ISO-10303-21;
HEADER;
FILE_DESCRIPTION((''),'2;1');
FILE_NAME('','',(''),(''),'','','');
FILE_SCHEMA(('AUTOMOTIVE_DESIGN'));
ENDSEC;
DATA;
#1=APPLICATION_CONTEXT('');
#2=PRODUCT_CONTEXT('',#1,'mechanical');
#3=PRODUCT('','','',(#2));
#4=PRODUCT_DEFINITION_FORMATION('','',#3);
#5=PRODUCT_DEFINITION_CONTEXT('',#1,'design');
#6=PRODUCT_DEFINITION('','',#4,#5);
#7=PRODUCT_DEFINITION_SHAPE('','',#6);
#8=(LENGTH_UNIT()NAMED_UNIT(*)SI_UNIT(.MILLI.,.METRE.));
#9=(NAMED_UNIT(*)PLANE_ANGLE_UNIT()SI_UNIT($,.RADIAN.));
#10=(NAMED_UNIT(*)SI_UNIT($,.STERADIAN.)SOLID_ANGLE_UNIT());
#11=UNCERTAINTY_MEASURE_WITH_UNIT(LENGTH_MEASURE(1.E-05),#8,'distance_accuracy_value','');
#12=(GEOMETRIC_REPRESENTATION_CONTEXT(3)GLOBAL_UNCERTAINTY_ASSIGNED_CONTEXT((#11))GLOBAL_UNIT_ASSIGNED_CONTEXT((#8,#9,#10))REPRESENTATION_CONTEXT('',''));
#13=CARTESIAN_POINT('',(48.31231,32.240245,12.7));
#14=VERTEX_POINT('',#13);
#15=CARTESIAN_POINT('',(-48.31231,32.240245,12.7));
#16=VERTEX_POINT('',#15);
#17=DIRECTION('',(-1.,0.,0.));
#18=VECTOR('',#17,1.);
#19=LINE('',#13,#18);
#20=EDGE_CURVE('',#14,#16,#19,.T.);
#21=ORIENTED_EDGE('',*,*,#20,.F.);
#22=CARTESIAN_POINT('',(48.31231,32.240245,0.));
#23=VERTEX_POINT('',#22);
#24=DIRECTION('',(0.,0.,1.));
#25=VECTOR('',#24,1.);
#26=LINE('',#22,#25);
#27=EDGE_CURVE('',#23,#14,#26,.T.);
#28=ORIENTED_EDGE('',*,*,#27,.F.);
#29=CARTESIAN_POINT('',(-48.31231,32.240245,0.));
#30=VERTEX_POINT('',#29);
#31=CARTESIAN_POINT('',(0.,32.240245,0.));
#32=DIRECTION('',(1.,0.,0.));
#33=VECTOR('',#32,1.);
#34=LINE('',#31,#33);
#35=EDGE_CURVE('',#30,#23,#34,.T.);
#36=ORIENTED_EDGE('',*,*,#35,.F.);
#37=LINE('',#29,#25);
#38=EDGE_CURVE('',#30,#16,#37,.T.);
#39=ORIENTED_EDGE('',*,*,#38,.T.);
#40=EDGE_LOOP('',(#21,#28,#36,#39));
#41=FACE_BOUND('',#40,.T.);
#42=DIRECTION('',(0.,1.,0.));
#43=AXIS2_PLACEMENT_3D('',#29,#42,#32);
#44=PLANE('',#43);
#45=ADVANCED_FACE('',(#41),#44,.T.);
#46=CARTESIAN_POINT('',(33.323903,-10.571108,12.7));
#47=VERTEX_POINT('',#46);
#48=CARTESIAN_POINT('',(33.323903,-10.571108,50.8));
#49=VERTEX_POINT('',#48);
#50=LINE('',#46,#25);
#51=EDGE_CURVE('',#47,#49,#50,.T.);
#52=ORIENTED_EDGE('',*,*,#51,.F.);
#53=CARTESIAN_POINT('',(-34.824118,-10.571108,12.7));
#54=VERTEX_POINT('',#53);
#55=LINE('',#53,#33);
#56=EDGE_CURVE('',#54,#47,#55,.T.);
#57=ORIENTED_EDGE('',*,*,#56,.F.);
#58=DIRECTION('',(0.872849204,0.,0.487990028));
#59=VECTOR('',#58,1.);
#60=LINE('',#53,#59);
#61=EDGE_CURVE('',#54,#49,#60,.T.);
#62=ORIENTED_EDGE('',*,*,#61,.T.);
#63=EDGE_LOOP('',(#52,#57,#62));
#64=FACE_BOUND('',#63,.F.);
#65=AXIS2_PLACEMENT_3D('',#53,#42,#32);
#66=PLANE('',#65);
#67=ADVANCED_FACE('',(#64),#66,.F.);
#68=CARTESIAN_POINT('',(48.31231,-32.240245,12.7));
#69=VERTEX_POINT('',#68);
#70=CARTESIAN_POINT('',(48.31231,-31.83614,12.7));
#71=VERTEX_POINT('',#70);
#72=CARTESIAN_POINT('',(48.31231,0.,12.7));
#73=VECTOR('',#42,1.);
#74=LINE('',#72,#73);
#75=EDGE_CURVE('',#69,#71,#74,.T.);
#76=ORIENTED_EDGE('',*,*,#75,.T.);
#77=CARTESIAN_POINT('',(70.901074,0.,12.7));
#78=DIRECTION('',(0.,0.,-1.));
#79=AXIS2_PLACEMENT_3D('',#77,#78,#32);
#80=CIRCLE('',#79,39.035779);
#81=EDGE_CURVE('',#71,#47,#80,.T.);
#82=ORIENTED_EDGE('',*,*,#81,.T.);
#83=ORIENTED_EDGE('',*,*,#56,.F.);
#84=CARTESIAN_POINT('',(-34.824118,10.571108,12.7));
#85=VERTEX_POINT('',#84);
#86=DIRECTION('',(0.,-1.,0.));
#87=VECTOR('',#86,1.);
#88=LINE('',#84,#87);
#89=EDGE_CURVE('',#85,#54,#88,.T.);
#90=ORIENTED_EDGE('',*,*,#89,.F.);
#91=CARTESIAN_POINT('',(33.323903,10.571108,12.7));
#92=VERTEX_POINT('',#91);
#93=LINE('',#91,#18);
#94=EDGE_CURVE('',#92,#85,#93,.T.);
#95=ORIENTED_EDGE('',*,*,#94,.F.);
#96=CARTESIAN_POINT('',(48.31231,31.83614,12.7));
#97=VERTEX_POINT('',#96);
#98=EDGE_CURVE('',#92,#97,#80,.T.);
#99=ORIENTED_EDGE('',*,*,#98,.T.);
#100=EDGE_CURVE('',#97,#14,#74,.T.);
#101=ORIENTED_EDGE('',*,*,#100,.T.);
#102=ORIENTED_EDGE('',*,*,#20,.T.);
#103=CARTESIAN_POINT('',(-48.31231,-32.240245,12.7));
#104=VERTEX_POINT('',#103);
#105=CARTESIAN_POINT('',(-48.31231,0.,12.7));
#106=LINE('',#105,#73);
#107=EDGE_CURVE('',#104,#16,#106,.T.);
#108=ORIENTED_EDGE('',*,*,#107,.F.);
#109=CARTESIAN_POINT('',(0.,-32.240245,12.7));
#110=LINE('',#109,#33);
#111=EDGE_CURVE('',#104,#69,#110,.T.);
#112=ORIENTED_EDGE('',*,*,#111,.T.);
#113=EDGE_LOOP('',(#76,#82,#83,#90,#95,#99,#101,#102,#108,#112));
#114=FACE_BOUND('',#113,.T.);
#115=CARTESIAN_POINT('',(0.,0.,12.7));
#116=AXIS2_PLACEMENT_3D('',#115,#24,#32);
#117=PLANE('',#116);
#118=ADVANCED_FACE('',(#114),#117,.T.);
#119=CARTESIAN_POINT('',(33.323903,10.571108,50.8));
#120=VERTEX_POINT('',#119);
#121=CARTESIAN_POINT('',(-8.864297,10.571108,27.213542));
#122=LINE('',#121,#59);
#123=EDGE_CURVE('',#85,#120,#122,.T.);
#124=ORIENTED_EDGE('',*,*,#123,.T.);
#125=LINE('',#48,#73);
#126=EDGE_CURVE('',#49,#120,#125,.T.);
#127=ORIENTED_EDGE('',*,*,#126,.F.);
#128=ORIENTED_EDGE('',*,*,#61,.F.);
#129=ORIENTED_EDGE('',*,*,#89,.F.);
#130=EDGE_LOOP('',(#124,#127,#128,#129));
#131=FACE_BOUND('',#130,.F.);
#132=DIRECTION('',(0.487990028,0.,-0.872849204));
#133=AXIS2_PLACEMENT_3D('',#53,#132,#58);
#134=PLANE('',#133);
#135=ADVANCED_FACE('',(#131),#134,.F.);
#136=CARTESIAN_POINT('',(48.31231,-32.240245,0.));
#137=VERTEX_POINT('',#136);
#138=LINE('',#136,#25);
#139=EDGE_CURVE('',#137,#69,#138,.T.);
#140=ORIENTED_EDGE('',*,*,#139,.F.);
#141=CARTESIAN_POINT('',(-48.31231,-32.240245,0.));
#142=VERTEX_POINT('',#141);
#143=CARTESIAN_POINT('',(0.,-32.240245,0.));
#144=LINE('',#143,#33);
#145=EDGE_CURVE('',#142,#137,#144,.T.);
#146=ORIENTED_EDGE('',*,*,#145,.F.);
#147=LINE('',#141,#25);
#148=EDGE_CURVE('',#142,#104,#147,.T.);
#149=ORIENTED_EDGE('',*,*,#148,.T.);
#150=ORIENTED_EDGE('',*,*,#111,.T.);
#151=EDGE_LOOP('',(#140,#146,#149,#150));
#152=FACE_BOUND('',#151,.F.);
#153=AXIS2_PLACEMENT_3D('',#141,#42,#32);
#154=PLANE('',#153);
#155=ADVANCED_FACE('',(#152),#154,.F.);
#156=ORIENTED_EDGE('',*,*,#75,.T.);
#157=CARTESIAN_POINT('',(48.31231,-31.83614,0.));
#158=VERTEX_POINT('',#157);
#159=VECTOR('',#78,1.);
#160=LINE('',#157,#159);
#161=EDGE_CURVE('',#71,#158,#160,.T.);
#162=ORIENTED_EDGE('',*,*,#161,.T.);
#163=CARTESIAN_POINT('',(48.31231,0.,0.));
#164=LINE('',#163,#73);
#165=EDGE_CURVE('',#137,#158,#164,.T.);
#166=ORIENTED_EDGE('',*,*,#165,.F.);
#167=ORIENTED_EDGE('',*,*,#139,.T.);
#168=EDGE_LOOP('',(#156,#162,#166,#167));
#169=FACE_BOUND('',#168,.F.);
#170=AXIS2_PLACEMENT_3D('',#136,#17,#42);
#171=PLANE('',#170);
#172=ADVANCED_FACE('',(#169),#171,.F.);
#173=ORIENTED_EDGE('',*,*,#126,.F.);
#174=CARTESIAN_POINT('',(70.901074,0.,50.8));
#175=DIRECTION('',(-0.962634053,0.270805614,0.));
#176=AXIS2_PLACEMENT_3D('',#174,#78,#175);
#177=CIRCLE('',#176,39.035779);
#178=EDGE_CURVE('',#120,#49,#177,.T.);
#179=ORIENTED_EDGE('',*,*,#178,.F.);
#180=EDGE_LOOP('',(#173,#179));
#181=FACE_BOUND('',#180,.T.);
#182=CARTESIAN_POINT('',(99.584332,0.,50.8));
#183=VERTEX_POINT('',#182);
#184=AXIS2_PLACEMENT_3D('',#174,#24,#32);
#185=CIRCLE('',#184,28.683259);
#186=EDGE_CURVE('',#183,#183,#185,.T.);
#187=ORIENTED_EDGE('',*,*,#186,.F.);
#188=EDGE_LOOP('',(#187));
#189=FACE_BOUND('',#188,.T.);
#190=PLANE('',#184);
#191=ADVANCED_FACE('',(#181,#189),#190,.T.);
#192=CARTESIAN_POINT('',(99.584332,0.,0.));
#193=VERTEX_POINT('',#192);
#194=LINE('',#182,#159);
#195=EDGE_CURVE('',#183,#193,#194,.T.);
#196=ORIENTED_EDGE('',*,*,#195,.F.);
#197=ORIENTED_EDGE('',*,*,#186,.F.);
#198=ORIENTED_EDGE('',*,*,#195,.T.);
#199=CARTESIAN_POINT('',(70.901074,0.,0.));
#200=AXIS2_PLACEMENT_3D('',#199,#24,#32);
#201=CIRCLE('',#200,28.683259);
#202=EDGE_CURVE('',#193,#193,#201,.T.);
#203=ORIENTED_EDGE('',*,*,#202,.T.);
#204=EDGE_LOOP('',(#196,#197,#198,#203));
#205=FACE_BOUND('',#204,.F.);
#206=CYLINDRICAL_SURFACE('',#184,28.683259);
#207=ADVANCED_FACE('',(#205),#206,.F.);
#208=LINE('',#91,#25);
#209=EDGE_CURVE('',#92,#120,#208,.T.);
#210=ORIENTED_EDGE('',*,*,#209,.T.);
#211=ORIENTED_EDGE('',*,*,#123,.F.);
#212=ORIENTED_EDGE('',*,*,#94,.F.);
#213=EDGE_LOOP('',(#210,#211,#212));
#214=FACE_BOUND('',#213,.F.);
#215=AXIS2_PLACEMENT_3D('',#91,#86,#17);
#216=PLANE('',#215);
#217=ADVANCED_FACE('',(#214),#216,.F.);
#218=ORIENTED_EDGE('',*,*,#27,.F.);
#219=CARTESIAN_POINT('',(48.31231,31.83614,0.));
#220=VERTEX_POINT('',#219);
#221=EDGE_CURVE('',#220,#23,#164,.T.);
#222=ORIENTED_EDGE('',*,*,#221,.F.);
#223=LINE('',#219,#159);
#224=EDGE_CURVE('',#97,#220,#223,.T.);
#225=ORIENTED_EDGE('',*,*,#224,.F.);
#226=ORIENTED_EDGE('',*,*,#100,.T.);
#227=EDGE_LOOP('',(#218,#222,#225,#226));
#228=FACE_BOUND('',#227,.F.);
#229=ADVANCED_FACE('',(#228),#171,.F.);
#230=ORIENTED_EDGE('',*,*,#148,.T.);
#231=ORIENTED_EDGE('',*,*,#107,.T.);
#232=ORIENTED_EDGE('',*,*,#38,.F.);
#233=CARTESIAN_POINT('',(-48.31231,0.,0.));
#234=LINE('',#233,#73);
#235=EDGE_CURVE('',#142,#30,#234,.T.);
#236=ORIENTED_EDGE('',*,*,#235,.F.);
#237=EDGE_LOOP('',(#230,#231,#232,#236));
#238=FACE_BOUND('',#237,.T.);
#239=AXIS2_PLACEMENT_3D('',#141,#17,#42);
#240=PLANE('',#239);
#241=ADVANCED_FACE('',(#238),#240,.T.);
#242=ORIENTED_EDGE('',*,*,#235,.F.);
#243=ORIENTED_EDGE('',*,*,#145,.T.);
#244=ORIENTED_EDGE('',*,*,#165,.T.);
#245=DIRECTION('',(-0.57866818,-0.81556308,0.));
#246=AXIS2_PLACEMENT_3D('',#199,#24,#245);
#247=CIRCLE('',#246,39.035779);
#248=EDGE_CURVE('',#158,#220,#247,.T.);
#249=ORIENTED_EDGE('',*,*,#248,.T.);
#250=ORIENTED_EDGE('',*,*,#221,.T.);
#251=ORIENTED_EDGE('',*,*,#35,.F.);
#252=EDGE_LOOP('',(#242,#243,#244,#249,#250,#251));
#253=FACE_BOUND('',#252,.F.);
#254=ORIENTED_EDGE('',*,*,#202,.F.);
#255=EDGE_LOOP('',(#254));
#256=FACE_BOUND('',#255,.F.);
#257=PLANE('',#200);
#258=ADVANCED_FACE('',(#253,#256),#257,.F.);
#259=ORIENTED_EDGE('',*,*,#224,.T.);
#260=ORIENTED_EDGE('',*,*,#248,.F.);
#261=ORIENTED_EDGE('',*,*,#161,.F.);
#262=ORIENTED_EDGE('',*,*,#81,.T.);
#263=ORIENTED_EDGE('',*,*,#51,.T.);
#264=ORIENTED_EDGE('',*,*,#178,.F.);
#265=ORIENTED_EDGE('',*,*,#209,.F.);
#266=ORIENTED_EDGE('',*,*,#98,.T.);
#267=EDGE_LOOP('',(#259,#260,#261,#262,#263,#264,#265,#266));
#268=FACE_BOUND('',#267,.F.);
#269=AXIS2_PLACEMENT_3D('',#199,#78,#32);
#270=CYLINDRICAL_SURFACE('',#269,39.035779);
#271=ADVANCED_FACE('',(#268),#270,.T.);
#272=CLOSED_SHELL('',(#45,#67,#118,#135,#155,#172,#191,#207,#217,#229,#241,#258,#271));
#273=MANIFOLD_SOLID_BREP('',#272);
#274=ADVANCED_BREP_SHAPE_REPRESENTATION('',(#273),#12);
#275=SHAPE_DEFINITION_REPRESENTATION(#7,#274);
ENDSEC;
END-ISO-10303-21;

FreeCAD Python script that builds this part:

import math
import FreeCAD as App
import Part
import Sketcher

V = App.Vector
Q = App.Units.Quantity


def add_polygon(sketch, points):
    """Adds a closed chain of lines whose ends are joined by coincident constraints."""
    first, n = sketch.GeometryCount, len(points)
    for a, b in zip(points, points[1:] + points[:1]):
        sketch.addGeometry(Part.LineSegment(App.Vector(*a, 0), App.Vector(*b, 0)), False)
    for i in range(n):
        sketch.addConstraint(Sketcher.Constraint("Coincident", first + i, 2, first + (i + 1) % n, 1))

doc = App.newDocument("Part")
body = doc.addObject("PartDesign::Body", "Body")

sketch1 = doc.addObject("Sketcher::SketchObject", "Sketch")
body.addObject(sketch1)
sketch1.AttachmentSupport = (doc.XY_Plane, [""])
sketch1.MapMode = "FlatFace"
add_polygon(sketch1, [(-48.31231, 32.240245), (-48.31231, -32.240245), (48.31231, -32.240245), (48.31231, 32.240245)])
sketch1.addConstraint(Sketcher.Constraint("Vertical", 0))
sketch1.addConstraint(Sketcher.Constraint("Horizontal", 1))
sketch1.addConstraint(Sketcher.Constraint("Vertical", 2))
sketch1.addConstraint(Sketcher.Constraint("Horizontal", 3))
sketch1.addConstraint(Sketcher.Constraint("Symmetric", 0, 2, 2, 2, -1, 1))
sketch1.addConstraint(Sketcher.Constraint("DistanceX", 1, 1, 1, 2, 96.62462))
sketch1.addConstraint(Sketcher.Constraint("DistanceY", 0, 2, 0, 1, 64.480491))
pad1 = doc.addObject("PartDesign::Pad", "Pad")
body.addObject(pad1)
pad1.Profile = sketch1
pad1.Length = Q("0.5 in")

sketch2 = doc.addObject("Sketcher::SketchObject", "Sketch001")
body.addObject(sketch2)
sketch2.AttachmentSupport = (doc.XY_Plane, [""])
sketch2.MapMode = "FlatFace"
sketch2.addGeometry(Part.Circle(V(70.901074, 0, 0), V(0, 0, 1), 39.035779), False)
sketch2.addConstraint(Sketcher.Constraint("PointOnObject", 0, 3, -1))
sketch2.addConstraint(Sketcher.Constraint("Diameter", 0, 78.071559))
sketch2.addConstraint(Sketcher.Constraint("DistanceX", -1, 1, 0, 3, 70.901074))
pad2 = doc.addObject("PartDesign::Pad", "Pad001")
body.addObject(pad2)
pad2.Profile = sketch2
pad2.Length = Q("2 in")

sketch3 = doc.addObject("Sketcher::SketchObject", "Sketch002")
body.addObject(sketch3)
sketch3.AttachmentSupport = (doc.XY_Plane, [""])
sketch3.MapMode = "FlatFace"
sketch3.AttachmentOffset = App.Placement(V(0, 0, 2 * 25.4), App.Rotation())
sketch3.addGeometry(Part.Circle(V(70.901074, 0, 0), V(0, 0, 1), 28.683259), False)
sketch3.addConstraint(Sketcher.Constraint("PointOnObject", 0, 3, -1))
sketch3.addConstraint(Sketcher.Constraint("Diameter", 0, 57.366518))
sketch3.addConstraint(Sketcher.Constraint("DistanceX", -1, 1, 0, 3, 70.901074))
pocket1 = doc.addObject("PartDesign::Pocket", "Pocket")
body.addObject(pocket1)
pocket1.Profile = sketch3
pocket1.Length = Q("3.74 in")

sketch4 = doc.addObject("Sketcher::SketchObject", "Sketch003")
body.addObject(sketch4)
sketch4.AttachmentSupport = (doc.XY_Plane, [""])
sketch4.MapMode = "FlatFace"
sketch4.AttachmentOffset = App.Placement(V(0, 0, 0.5 * 25.4), App.Rotation())
sketch4.addGeometry(Part.LineSegment(V(33.323903, 10.571108, 0), V(-34.824118, 10.571108, 0)), False)
sketch4.addGeometry(Part.LineSegment(V(-34.824118, 10.571108, 0), V(-34.824118, -10.571108, 0)), False)
sketch4.addGeometry(Part.LineSegment(V(-34.824118, -10.571108, 0), V(33.323903, -10.571108, 0)), False)
sketch4.addGeometry(Part.ArcOfCircle(Part.Circle(V(70.901074, 0, 0), V(0, 0, 1), 39.035779), math.radians(164.287789), math.radians(195.712211)), False)
sketch4.addConstraint(Sketcher.Constraint("Coincident", 0, 2, 1, 1))
sketch4.addConstraint(Sketcher.Constraint("Coincident", 1, 2, 2, 1))
sketch4.addConstraint(Sketcher.Constraint("Coincident", 2, 2, 3, 2))
sketch4.addConstraint(Sketcher.Constraint("Coincident", 3, 1, 0, 1))
sketch4.addConstraint(Sketcher.Constraint("Horizontal", 0))
sketch4.addConstraint(Sketcher.Constraint("Vertical", 1))
sketch4.addConstraint(Sketcher.Constraint("Horizontal", 2))
sketch4.addConstraint(Sketcher.Constraint("Symmetric", 2, 2, 3, 1, -1))
sketch4.addConstraint(Sketcher.Constraint("Radius", 3, 39.035779))
sketch4.addConstraint(Sketcher.Constraint("DistanceX", 0, 2, 0, 1, 68.148021))
sketch4.addConstraint(Sketcher.Constraint("DistanceY", 1, 2, 1, 1, 21.142216))
sketch4.addConstraint(Sketcher.Constraint("DistanceX", 0, 2, -1, 1, 34.824118))
pad3 = doc.addObject("PartDesign::Pad", "Pad002")
body.addObject(pad3)
pad3.Profile = sketch4
pad3.Length = Q("1.5 in")

sketch5 = doc.addObject("Sketcher::SketchObject", "Sketch004")
body.addObject(sketch5)
sketch5.AttachmentSupport = (doc.XZ_Plane, [""])
sketch5.MapMode = "FlatFace"
sketch5.AttachmentOffset = App.Placement(V(0, 0, 10.571108), App.Rotation())
add_polygon(sketch5, [(-34.824118, 12.7), (33.323903, 50.8), (-34.824118, 50.8)])
sketch5.addConstraint(Sketcher.Constraint("Horizontal", 1))
sketch5.addConstraint(Sketcher.Constraint("Vertical", 2))
sketch5.addConstraint(Sketcher.Constraint("DistanceY", 2, 2, 2, 1, Q("1.5 in")))
sketch5.addConstraint(Sketcher.Constraint("DistanceY", -1, 1, 0, 2, Q("2 in")))
sketch5.addConstraint(Sketcher.Constraint("DistanceX", 1, 2, 1, 1, 68.148021))
sketch5.addConstraint(Sketcher.Constraint("DistanceX", 1, 2, -1, 1, 34.824118))
pocket2 = doc.addObject("PartDesign::Pocket", "Pocket001")
body.addObject(pocket2)
pocket2.Profile = sketch5
pocket2.Length = Q("2.87 in")

doc.recompute()
